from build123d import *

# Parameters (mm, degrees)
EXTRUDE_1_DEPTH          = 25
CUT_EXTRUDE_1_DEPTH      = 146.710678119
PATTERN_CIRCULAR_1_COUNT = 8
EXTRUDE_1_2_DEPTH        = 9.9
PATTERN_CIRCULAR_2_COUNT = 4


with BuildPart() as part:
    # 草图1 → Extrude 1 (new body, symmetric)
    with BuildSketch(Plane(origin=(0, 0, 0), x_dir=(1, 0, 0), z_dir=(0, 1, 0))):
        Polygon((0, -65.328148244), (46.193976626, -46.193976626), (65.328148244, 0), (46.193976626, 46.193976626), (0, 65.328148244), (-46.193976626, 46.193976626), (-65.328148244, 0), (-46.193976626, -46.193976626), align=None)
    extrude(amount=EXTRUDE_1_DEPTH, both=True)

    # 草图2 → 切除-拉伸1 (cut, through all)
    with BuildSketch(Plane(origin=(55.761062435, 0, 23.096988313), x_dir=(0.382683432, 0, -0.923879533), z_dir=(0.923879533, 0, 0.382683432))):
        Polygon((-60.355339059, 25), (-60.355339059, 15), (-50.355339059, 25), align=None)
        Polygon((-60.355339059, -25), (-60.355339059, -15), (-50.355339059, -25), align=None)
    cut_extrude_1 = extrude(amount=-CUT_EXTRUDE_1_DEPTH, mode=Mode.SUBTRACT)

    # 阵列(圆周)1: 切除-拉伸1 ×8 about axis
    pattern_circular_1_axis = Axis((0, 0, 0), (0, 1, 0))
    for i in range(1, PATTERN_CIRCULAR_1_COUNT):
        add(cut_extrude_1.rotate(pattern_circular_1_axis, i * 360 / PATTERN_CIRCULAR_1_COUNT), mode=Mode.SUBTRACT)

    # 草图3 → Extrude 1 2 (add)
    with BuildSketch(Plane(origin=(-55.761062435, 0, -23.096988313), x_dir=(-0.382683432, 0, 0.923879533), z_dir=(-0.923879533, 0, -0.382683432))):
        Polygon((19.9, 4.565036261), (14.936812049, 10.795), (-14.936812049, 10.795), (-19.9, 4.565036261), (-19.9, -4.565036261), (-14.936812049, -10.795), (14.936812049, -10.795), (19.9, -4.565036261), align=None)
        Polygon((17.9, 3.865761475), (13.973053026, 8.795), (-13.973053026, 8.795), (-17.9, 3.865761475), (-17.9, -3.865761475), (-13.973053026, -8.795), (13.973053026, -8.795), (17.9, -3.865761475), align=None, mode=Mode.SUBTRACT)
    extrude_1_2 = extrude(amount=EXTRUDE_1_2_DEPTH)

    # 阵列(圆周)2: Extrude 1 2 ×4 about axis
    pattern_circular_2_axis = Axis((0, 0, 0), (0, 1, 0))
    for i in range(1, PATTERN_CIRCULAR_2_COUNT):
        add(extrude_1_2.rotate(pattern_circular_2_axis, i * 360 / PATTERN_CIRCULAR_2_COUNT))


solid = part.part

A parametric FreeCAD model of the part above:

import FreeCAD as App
import Part
import Sketcher
from FreeCAD import Vector
Q = App.Units.Quantity


def add_polygon(sketch, points):
    """Adds a closed chain of lines whose ends are joined by coincident constraints."""
    first, n = sketch.GeometryCount, len(points)
    for a, b in zip(points, points[1:] + points[:1]):
        sketch.addGeometry(Part.LineSegment(App.Vector(*a, 0), App.Vector(*b, 0)), False)
    for i in range(n):
        sketch.addConstraint(Sketcher.Constraint("Coincident", first + i, 2, first + (i + 1) % n, 1))

doc = App.newDocument("Part")
body = doc.addObject("PartDesign::Body", "Body")

# Sketch on XZ plane
sketch1 = body.newObject("Sketcher::SketchObject", "Sketch")
sketch1.AttachmentSupport = (doc.getObject("XZ_Plane"), [""])
sketch1.MapMode = "FlatFace"
add_polygon(sketch1, [(0, 65), (46, 46), (65, 0), (46, -46), (0, -65), (-46, -46), (-65, 0), (-46, 46)])  # lines 0-7
sketch1.addConstraint([
    Sketcher.Constraint("Symmetric", 0, 2, 4, 2, -1, 1),
    Sketcher.Constraint("Symmetric", 1, 2, 5, 2, -1, 1),
    Sketcher.Constraint("Symmetric", 2, 2, 6, 2, -1, 1),
    Sketcher.Constraint("Symmetric", 3, 2, 7, 2, -1, 1),
    Sketcher.Constraint("Symmetric", 2, 2, 4, 2, -2),
    Sketcher.Constraint("PointOnObject", 1, 2, -1),
    Sketcher.Constraint("PointOnObject", 3, 2, -2),
    Sketcher.Constraint("Perpendicular", 0, 2),
    Sketcher.Constraint("Equal", 0, 1),
    Sketcher.Constraint("Distance", 0, Q("50 mm")),
    Sketcher.Constraint("Angle", 0, Q("-22.5 deg")),
])
pad1 = body.newObject("PartDesign::Pad", "Pad")
pad1.Profile = sketch1
pad1.Length = 50
pad1.Midplane = True

# Sketch on an angled plane
sketch2 = body.newObject("Sketcher::SketchObject", "Sketch001")
sketch2.Placement = App.Placement(Vector(55.761062, 0, 23.096988), App.Rotation(Vector(0.382683432, 0, -0.923879533), Vector(0, 1.000000001, 0), Vector(0.923879533, 0, 0.382683432), "ZXY"))
add_polygon(sketch2, [(-60, 25), (-60, 15), (-50, 25)])  # lines 0-2
add_polygon(sketch2, [(-60, -15), (-60, -25), (-50, -25)])  # lines 3-5
sketch2.addConstraint([
    Sketcher.Constraint("Vertical", 0),
    Sketcher.Constraint("Horizontal", 2),
    Sketcher.Constraint("Vertical", 3),
    Sketcher.Constraint("Horizontal", 4),
    Sketcher.Constraint("Symmetric", 2, 2, 3, 2, -1),
    Sketcher.Constraint("Perpendicular", 1, 5),
    Sketcher.Constraint("Vertical", 1, 2, 4, 2),
    Sketcher.Constraint("Equal", 4, 0),
    Sketcher.Constraint("DistanceX", 2, 2, 2, 1, Q("10 mm")),
    Sketcher.Constraint("DistanceY", -1, 1, 0, 2, Q("15 mm")),
    Sketcher.Constraint("DistanceX", 0, 2, -1, 1, Q("60.355339 mm")),
])
pocket1 = body.newObject("PartDesign::Pocket", "Pocket")
pocket1.Profile = sketch2
pocket1.Type = "ThroughAll"
doc.recompute()

polarpattern = body.newObject("PartDesign::PolarPattern", "PolarPattern")
polarpattern.Originals = [pocket1]
polarpattern.Axis = (doc.getObject("Y_Axis"), [""])
polarpattern.Angle = 360
polarpattern.Occurrences = 8
body.Tip = polarpattern

# Sketch on an angled plane
sketch3 = body.newObject("Sketcher::SketchObject", "Sketch002")
sketch3.Placement = App.Placement(Vector(-55.761062, 0, -23.096988), App.Rotation(Vector(-0.382683432, 0, 0.923879533), Vector(0, 1.000000001, 0), Vector(-0.923879533, 0, -0.382683432), "ZXY"))
add_polygon(sketch3, [(20, 5), (15, 11), (-15, 11), (-20, 5), (-20, -5), (-15, -11), (15, -11), (20, -5)])  # lines 0-7
add_polygon(sketch3, [(14, 9), (18, 4), (18, -4), (14, -9), (-14, -9), (-18, -4), (-18, 4), (-14, 9)])  # lines 8-15
sketch3.addConstraint([
    Sketcher.Constraint("Horizontal", 1),
    Sketcher.Constraint("Vertical", 3),
    Sketcher.Constraint("Horizontal", 5),
    Sketcher.Constraint("Vertical", 7),
    Sketcher.Constraint("Vertical", 9),
    Sketcher.Constraint("Horizontal", 11),
    Sketcher.Constraint("Vertical", 13),
    Sketcher.Constraint("Horizontal", 15),
    Sketcher.Constraint("Symmetric", 0, 2, 4, 2, -1, 1),
    Sketcher.Constraint("Symmetric", 2, 2, 6, 2, -1, 1),
    Sketcher.Constraint("Symmetric", 8, 2, 12, 2, -1, 1),
    Sketcher.Constraint("Symmetric", 10, 2, 14, 2, -1, 1),
    Sketcher.Constraint("Parallel", 0, 4),
    Sketcher.Constraint("Parallel", 2, 6),
    Sketcher.Constraint("Parallel", 4, 8),
    Sketcher.Constraint("Parallel", 6, 10),
    Sketcher.Constraint("Parallel", 8, 12),
    Sketcher.Constraint("Parallel", 10, 14),
    Sketcher.Constraint("Horizontal", 3, 2, 6, 2),
    Sketcher.Constraint("Horizontal", 9, 2, 12, 2),
    Sketcher.Constraint("Vertical", 1, 2, 4, 2),
    Sketcher.Constraint("DistanceX", 8, 2, 7, 2, Q("2 mm")),
    Sketcher.Constraint("DistanceY", 5, 2, 10, 2, Q("2 mm")),
    Sketcher.Constraint("DistanceX", 2, 2, -1, 1, Q("19.9 mm")),
    Sketcher.Constraint("DistanceY", 4, 2, 1, 2, Q("21.59 mm")),
    Sketcher.Constraint("Distance", 0, Q("7.96528 mm")),
    Sketcher.Constraint("DistanceX", 1, 2, 1, 1, Q("29.873624 mm")),
    Sketcher.Constraint("DistanceX", 11, 2, 11, 1, Q("27.946106 mm")),
])
pad2 = body.newObject("PartDesign::Pad", "Pad001")
pad2.Profile = sketch3
pad2.Length = 9.9
doc.recompute()

polarpattern2 = body.newObject("PartDesign::PolarPattern", "PolarPattern001")
polarpattern2.Originals = [pad2]
polarpattern2.Axis = (doc.getObject("Y_Axis"), [""])
polarpattern2.Angle = 360
polarpattern2.Occurrences = 4
body.Tip = polarpattern2

doc.recompute()
